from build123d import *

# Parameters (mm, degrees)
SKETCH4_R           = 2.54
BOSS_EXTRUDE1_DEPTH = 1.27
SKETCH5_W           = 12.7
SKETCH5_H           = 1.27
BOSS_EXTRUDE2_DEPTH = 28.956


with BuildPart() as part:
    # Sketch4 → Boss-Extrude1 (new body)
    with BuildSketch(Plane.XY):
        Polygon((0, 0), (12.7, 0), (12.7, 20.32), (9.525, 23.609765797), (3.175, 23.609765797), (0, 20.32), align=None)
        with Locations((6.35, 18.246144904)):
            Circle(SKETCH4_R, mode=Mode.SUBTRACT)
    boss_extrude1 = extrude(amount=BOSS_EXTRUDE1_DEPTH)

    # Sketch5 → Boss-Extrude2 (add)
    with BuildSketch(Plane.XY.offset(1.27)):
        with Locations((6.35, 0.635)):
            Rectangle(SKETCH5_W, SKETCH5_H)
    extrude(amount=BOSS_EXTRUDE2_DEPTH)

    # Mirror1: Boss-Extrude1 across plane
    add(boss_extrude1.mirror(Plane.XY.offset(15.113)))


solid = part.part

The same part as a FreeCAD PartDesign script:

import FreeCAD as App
import Part
import Sketcher
Q = App.Units.Quantity

doc = App.newDocument("Part")
params = doc.addObject("Spreadsheet::Sheet", "Params")
for row, (alias, value) in enumerate([
    ("sketch1_diameter", "0.2 in"),
    ("sketch1_width", "0.5 in"),
    ("sketch1_height", "0.8 in"),
    ("sketch1_width2", "0.25 in"),
    ("sketch1_length", "0.18 in"),
    ("pad1_length", "0.05 in"),
    ("sketch2_width", "0.5 in"),
    ("sketch2_height", "0.05 in"),
    ("pad2_length", "1.14 in"),
], start=1):
    params.set(f"A{row}", alias)
    params.set(f"B{row}", "=" + value)
    params.setAlias(f"B{row}", alias)

body = doc.addObject("PartDesign::Body", "Body")

sketch1 = body.newObject("Sketcher::SketchObject", "Sketch")
sketch1.AttachmentSupport = (doc.getObject("XY_Plane"), [""])
sketch1.MapMode = "FlatFace"
sketch1.addGeometry(Part.LineSegment(App.Vector(0, 0, 0), App.Vector(12.7, 0, 0)), False)
sketch1.addGeometry(Part.LineSegment(App.Vector(12.7, 0, 0), App.Vector(12.7, 20.3, 0)), False)
sketch1.addGeometry(Part.LineSegment(App.Vector(12.7, 20.3, 0), App.Vector(9.5, 23.6, 0)), False)
sketch1.addGeometry(Part.LineSegment(App.Vector(9.5, 23.6, 0), App.Vector(3.2, 23.6, 0)), False)
sketch1.addGeometry(Part.LineSegment(App.Vector(3.2, 23.6, 0), App.Vector(0, 20.3, 0)), False)
sketch1.addGeometry(Part.LineSegment(App.Vector(0, 20.3, 0), App.Vector(0, 0, 0)), False)
sketch1.addGeometry(Part.Circle(App.Vector(6.3, 18.2, 0), App.Vector(0, 0, 1), 2.5), False)
sketch1.addConstraint(Sketcher.Constraint("Coincident", 0, 2, 1, 1))
sketch1.addConstraint(Sketcher.Constraint("Coincident", 1, 2, 2, 1))
sketch1.addConstraint(Sketcher.Constraint("Coincident", 2, 2, 3, 1))
sketch1.addConstraint(Sketcher.Constraint("Coincident", 3, 2, 4, 1))
sketch1.addConstraint(Sketcher.Constraint("Coincident", 4, 2, 5, 1))
sketch1.addConstraint(Sketcher.Constraint("Coincident", 5, 2, 0, 1))
sketch1.addConstraint(Sketcher.Constraint("Horizontal", 0))
sketch1.addConstraint(Sketcher.Constraint("Vertical", 1))
sketch1.addConstraint(Sketcher.Constraint("Horizontal", 3))
sketch1.addConstraint(Sketcher.Constraint("Vertical", 5))
sketch1.addConstraint(Sketcher.Constraint("Coincident", 5, 2, -1, 1))
sketch1.addConstraint(Sketcher.Constraint("Horizontal", 1, 2, 4, 2))
sketch1.addConstraint(Sketcher.Constraint("Equal", 2, 4))
sketch1.addConstraint(Sketcher.Constraint("Diameter", 6, Q("0.2 in")))
sketch1.addConstraint(Sketcher.Constraint("DistanceX", 0, 1, 0, 2, Q("0.5 in")))
sketch1.addConstraint(Sketcher.Constraint("DistanceY", 1, 1, 1, 2, Q("0.8 in")))
sketch1.addConstraint(Sketcher.Constraint("DistanceX", 3, 2, 3, 1, Q("0.25 in")))
sketch1.addConstraint(Sketcher.Constraint("Distance", 2, Q("0.18 in")))
sketch1.addConstraint(Sketcher.Constraint("DistanceX", -1, 1, 6, 3, Q("0.25 in")))
sketch1.addConstraint(Sketcher.Constraint("DistanceY", 6, 3, 2, 2, 5.363621))
sketch1.setExpression("Constraints[13]", "Params.sketch1_diameter")
sketch1.setExpression("Constraints[14]", "Params.sketch1_width")
sketch1.setExpression("Constraints[15]", "Params.sketch1_height")
sketch1.setExpression("Constraints[16]", "Params.sketch1_width2")
sketch1.setExpression("Constraints[17]", "Params.sketch1_length")
pad1 = body.newObject("PartDesign::Pad", "Pad")
pad1.Profile = sketch1
pad1.setExpression("Length", "Params.pad1_length")

sketch2 = body.newObject("Sketcher::SketchObject", "Sketch001")
sketch2.AttachmentSupport = (doc.getObject("XY_Plane"), [""])
sketch2.MapMode = "FlatFace"
sketch2.AttachmentOffset = App.Placement(App.Vector(0, 0, 0.05 * 25.4), App.Rotation())
sketch2.addGeometry(Part.LineSegment(App.Vector(0, 1.3, 0), App.Vector(0, 0, 0)), False)
sketch2.addGeometry(Part.LineSegment(App.Vector(0, 0, 0), App.Vector(12.7, 0, 0)), False)
sketch2.addGeometry(Part.LineSegment(App.Vector(12.7, 0, 0), App.Vector(12.7, 1.3, 0)), False)
sketch2.addGeometry(Part.LineSegment(App.Vector(12.7, 1.3, 0), App.Vector(0, 1.3, 0)), False)
sketch2.addConstraint(Sketcher.Constraint("Coincident", 0, 2, 1, 1))
sketch2.addConstraint(Sketcher.Constraint("Coincident", 1, 2, 2, 1))
sketch2.addConstraint(Sketcher.Constraint("Coincident", 2, 2, 3, 1))
sketch2.addConstraint(Sketcher.Constraint("Coincident", 3, 2, 0, 1))
sketch2.addConstraint(Sketcher.Constraint("Vertical", 0))
sketch2.addConstraint(Sketcher.Constraint("Horizontal", 1))
sketch2.addConstraint(Sketcher.Constraint("Vertical", 2))
sketch2.addConstraint(Sketcher.Constraint("Horizontal", 3))
sketch2.addConstraint(Sketcher.Constraint("Coincident", 0, 2, -1, 1))
sketch2.addConstraint(Sketcher.Constraint("DistanceX", 1, 1, 1, 2, Q("0.5 in")))
sketch2.addConstraint(Sketcher.Constraint("DistanceY", 0, 2, 0, 1, Q("0.05 in")))
sketch2.setExpression("Constraints[9]", "Params.sketch2_width")
sketch2.setExpression("Constraints[10]", "Params.sketch2_height")
pad2 = body.newObject("PartDesign::Pad", "Pad001")
pad2.Profile = sketch2
pad2.setExpression("Length", "Params.pad2_length")
doc.recompute()

datumplane = body.newObject("PartDesign::Plane", "DatumPlane")
datumplane.AttachmentSupport = (doc.getObject("XY_Plane"), [""])
datumplane.MapMode = "FlatFace"
datumplane.AttachmentOffset = App.Placement(App.Vector(0, 0, 0.595 * 25.4), App.Rotation())
mirrored = body.newObject("PartDesign::Mirrored", "Mirrored")
mirrored.Originals = [pad1]
mirrored.MirrorPlane = (datumplane, [""])
body.Tip = mirrored

doc.recompute()
